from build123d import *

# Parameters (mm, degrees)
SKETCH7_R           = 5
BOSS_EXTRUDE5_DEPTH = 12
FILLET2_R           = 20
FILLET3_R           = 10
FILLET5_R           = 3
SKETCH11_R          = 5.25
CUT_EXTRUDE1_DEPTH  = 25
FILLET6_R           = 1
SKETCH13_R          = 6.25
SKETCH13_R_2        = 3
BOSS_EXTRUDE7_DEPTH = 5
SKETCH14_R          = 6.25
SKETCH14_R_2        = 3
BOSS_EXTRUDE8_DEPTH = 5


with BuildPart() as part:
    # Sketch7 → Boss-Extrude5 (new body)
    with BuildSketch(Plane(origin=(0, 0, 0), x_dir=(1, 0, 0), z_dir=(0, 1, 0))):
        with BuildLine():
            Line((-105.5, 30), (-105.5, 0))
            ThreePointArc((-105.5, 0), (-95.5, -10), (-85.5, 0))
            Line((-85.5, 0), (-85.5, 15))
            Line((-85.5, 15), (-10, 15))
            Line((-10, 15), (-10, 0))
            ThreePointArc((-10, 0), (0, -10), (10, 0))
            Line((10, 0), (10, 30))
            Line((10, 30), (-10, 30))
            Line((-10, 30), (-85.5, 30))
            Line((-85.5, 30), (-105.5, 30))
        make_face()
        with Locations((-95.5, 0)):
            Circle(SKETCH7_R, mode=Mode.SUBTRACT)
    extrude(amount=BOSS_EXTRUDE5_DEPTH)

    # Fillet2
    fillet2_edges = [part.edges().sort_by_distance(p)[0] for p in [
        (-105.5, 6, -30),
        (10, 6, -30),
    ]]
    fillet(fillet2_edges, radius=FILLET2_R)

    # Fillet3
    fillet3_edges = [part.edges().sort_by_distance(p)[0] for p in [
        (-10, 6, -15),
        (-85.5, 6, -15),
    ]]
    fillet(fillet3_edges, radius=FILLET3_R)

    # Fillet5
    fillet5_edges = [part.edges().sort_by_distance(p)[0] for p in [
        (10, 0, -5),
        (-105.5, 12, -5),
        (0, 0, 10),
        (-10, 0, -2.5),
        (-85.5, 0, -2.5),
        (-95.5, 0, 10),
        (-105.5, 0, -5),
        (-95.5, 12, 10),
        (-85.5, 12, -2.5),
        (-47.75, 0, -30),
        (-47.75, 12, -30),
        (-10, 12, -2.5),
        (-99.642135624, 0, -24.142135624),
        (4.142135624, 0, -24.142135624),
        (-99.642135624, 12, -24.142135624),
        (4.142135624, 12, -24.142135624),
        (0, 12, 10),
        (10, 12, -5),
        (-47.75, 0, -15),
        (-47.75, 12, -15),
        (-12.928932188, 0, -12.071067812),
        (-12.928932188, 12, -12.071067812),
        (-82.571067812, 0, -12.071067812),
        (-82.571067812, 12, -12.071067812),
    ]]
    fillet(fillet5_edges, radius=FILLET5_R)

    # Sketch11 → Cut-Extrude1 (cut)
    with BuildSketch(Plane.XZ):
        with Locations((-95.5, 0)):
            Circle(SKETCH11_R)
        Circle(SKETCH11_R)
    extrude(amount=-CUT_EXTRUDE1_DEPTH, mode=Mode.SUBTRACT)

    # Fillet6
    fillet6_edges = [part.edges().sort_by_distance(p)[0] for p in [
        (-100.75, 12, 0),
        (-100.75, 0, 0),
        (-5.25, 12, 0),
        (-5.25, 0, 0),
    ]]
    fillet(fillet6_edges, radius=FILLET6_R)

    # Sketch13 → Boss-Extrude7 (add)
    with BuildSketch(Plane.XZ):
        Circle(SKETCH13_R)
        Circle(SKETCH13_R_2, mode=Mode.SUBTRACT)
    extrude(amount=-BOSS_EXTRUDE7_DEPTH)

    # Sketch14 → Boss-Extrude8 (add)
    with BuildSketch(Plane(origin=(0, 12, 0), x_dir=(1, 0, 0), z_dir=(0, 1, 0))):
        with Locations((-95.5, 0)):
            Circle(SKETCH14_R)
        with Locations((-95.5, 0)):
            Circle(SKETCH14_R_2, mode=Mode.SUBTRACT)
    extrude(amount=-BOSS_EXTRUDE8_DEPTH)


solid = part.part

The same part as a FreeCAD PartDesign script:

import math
import FreeCAD as App
import Part
import Sketcher
Q = App.Units.Quantity


def edges_at(feature, points):
    """Names of the edges that pass closest to the given points."""
    edges = feature.Shape.Edges
    near = lambda p: min(range(len(edges)), key=lambda i: edges[i].distToShape(Part.Vertex(*p))[0])
    return sorted({f"Edge{near(p) + 1}" for p in points})

doc = App.newDocument("Part")
params = doc.addObject("Spreadsheet::Sheet", "Params")
for row, (alias, value) in enumerate([
    ("sketch1_diameter", "10 mm"),
    ("sketch1_radius", "10 mm"),
    ("sketch1_height", "30 mm"),
    ("sketch1_height2", "15 mm"),
    ("sketch1_width", "75.5 mm"),
    ("pad1_length", "12 mm"),
    ("fillet_radius", "20 mm"),
    ("fillet2_radius", "10 mm"),
    ("fillet3_radius", "3 mm"),
    ("sketch2_diameter", "10.5 mm"),
    ("pocket1_length", "25 mm"),
    ("fillet4_radius", "1 mm"),
    ("sketch3_diameter", "6 mm"),
    ("sketch3_diameter2", "12.5 mm"),
    ("pad2_length", "5 mm"),
    ("sketch4_diameter", "6 mm"),
    ("sketch4_diameter2", "12.5 mm"),
    ("pad3_length", "5 mm"),
], start=1):
    params.set(f"A{row}", alias)
    params.set(f"B{row}", "=" + value)
    params.setAlias(f"B{row}", alias)

body = doc.addObject("PartDesign::Body", "Body")

# Sketch on XZ plane
sketch1 = doc.addObject("Sketcher::SketchObject", "Sketch")
body.addObject(sketch1)
sketch1.AttachmentSupport = (doc.XZ_Plane, [""])
sketch1.MapMode = "FlatFace"
sketch1.addGeometry([
    Part.LineSegment(App.Vector(-106, -30, 0), App.Vector(-106, 0, 0)),  # 0
    Part.ArcOfCircle(Part.Circle(App.Vector(-96, 0, 0), App.Vector(0, 0, 1), 10), math.radians(0), math.radians(180)),  # 1
    Part.LineSegment(App.Vector(-86, 0, 0), App.Vector(-86, -15, 0)),  # 2
    Part.LineSegment(App.Vector(-86, -15, 0), App.Vector(-10, -15, 0)),  # 3
    Part.LineSegment(App.Vector(-10, -15, 0), App.Vector(-10, 0, 0)),  # 4
    Part.ArcOfCircle(Part.Circle(App.Vector(0, 0, 0), App.Vector(0, 0, 1), 10), math.radians(0), math.radians(180)),  # 5
    Part.LineSegment(App.Vector(10, 0, 0), App.Vector(10, -30, 0)),  # 6
    Part.LineSegment(App.Vector(10, -30, 0), App.Vector(-106, -30, 0)),  # 7
    Part.Circle(App.Vector(-96, 0, 0), App.Vector(0, 0, 1), 5),  # 8
], False)
sketch1.addConstraint([
    Sketcher.Constraint("Tangent", 0, 2, 1, 2),
    Sketcher.Constraint("Tangent", 1, 1, 2, 1),
    Sketcher.Constraint("Coincident", 2, 2, 3, 1),
    Sketcher.Constraint("Coincident", 3, 2, 4, 1),
    Sketcher.Constraint("Tangent", 4, 2, 5, 2),
    Sketcher.Constraint("Tangent", 5, 1, 6, 1),
    Sketcher.Constraint("Coincident", 6, 2, 7, 1),
    Sketcher.Constraint("Coincident", 7, 2, 0, 1),
    Sketcher.Constraint("Vertical", 0),
    Sketcher.Constraint("Vertical", 2),
    Sketcher.Constraint("Horizontal", 3),
    Sketcher.Constraint("Vertical", 4),
    Sketcher.Constraint("Vertical", 6),
    Sketcher.Constraint("Horizontal", 7),
    Sketcher.Constraint("Coincident", 5, 3, -1, 1),
    Sketcher.Constraint("Coincident", 8, 3, 1, 3),
    Sketcher.Constraint("Equal", 1, 5),
    Sketcher.Constraint("PointOnObject", 1, 3, -1),
    Sketcher.Constraint("Diameter", 8, Q("10 mm")),
    Sketcher.Constraint("Radius", 1, Q("10 mm")),
    Sketcher.Constraint("DistanceY", 0, 1, 0, 2, Q("30 mm")),
    Sketcher.Constraint("DistanceY", 2, 2, 2, 1, Q("15 mm")),
    Sketcher.Constraint("DistanceX", 3, 1, 3, 2, Q("75.5 mm")),
])
sketch1.setExpression("Constraints[18]", "Params.sketch1_diameter")
sketch1.setExpression("Constraints[19]", "Params.sketch1_radius")
sketch1.setExpression("Constraints[20]", "Params.sketch1_height")
sketch1.setExpression("Constraints[21]", "Params.sketch1_height2")
sketch1.setExpression("Constraints[22]", "Params.sketch1_width")
pad1 = doc.addObject("PartDesign::Pad", "Pad")
body.addObject(pad1)
pad1.Profile = sketch1
pad1.setExpression("Length", "Params.pad1_length")
pad1.Reversed = True
doc.recompute()

fillet = doc.addObject("PartDesign::Fillet", "Fillet")
body.addObject(fillet)
fillet.Base = (pad1, edges_at(pad1, [(-105.5, 6, -30), (10, 6, -30)]))
fillet.setExpression("Radius", "Params.fillet_radius")
doc.recompute()

fillet2 = doc.addObject("PartDesign::Fillet", "Fillet001")
body.addObject(fillet2)
fillet2.Base = (fillet, edges_at(fillet, [(-10, 6, -15), (-85.5, 6, -15)]))
fillet2.setExpression("Radius", "Params.fillet2_radius")
doc.recompute()

fillet3 = doc.addObject("PartDesign::Fillet", "Fillet002")
body.addObject(fillet3)
fillet3.Base = (fillet2, edges_at(fillet2, [
    (10, 0, -5),
    (-105.5, 12, -5),
    (0, 0, 10),
    (-10, 0, -2.5),
    (-85.5, 0, -2.5),
    (-95.5, 0, 10),
    (-105.5, 0, -5),
    (-95.5, 12, 10),
    (-85.5, 12, -2.5),
    (-47.75, 0, -30),
    (-47.75, 12, -30),
    (-10, 12, -2.5),
    (-99.642, 0, -24.142),
    (4.142, 0, -24.142),
    (-99.642, 12, -24.142),
    (4.142, 12, -24.142),
    (0, 12, 10),
    (10, 12, -5),
    (-47.75, 0, -15),
    (-47.75, 12, -15),
    (-12.929, 0, -12.071),
    (-12.929, 12, -12.071),
    (-82.571, 0, -12.071),
    (-82.571, 12, -12.071),
]))
fillet3.setExpression("Radius", "Params.fillet3_radius")

# Sketch on XZ plane
sketch2 = doc.addObject("Sketcher::SketchObject", "Sketch001")
body.addObject(sketch2)
sketch2.AttachmentSupport = (doc.XZ_Plane, [""])
sketch2.MapMode = "FlatFace"
sketch2.addGeometry([
    Part.Circle(App.Vector(-96, 0, 0), App.Vector(0, 0, 1), 5),
    Part.Circle(App.Vector(0, 0, 0), App.Vector(0, 0, 1), 5),
], False)
sketch2.addConstraint([
    Sketcher.Constraint("Coincident", 1, 3, -1, 1),
    Sketcher.Constraint("Equal", 0, 1),
    Sketcher.Constraint("PointOnObject", 0, 3, -1),
    Sketcher.Constraint("Diameter", 0, Q("10.5 mm")),
    Sketcher.Constraint("DistanceX", 0, 3, -1, 1, Q("95.5 mm")),
])
sketch2.setExpression("Constraints[3]", "Params.sketch2_diameter")
pocket1 = doc.addObject("PartDesign::Pocket", "Pocket")
body.addObject(pocket1)
pocket1.Profile = sketch2
pocket1.setExpression("Length", "Params.pocket1_length")
doc.recompute()

fillet4 = doc.addObject("PartDesign::Fillet", "Fillet003")
body.addObject(fillet4)
fillet4.Base = (pocket1, edges_at(pocket1, [
    (-100.75, 12, 0),
    (-100.75, 0, 0),
    (-5.25, 12, 0),
    (-5.25, 0, 0),
]))
fillet4.setExpression("Radius", "Params.fillet4_radius")

# Sketch on XZ plane
sketch3 = doc.addObject("Sketcher::SketchObject", "Sketch002")
body.addObject(sketch3)
sketch3.AttachmentSupport = (doc.XZ_Plane, [""])
sketch3.MapMode = "FlatFace"
sketch3.addGeometry([
    Part.Circle(App.Vector(0, 0, 0), App.Vector(0, 0, 1), 6.2),
    Part.Circle(App.Vector(0, 0, 0), App.Vector(0, 0, 1), 3),
], False)
sketch3.addConstraint([
    Sketcher.Constraint("Coincident", 0, 3, -1, 1),
    Sketcher.Constraint("Coincident", 1, 3, -1, 1),
    Sketcher.Constraint("Diameter", 1, Q("6 mm")),
    Sketcher.Constraint("Diameter", 0, Q("12.5 mm")),
])
sketch3.setExpression("Constraints[2]", "Params.sketch3_diameter")
sketch3.setExpression("Constraints[3]", "Params.sketch3_diameter2")
pad2 = doc.addObject("PartDesign::Pad", "Pad001")
body.addObject(pad2)
pad2.Profile = sketch3
pad2.setExpression("Length", "Params.pad2_length")
pad2.Reversed = True

# Sketch on XZ plane
sketch4 = doc.addObject("Sketcher::SketchObject", "Sketch003")
body.addObject(sketch4)
sketch4.AttachmentSupport = (doc.XZ_Plane, [""])
sketch4.MapMode = "FlatFace"
sketch4.AttachmentOffset = App.Placement(App.Vector(0, 0, -12), App.Rotation())
sketch4.addGeometry([
    Part.Circle(App.Vector(-95.5, 0, 0), App.Vector(0, 0, 1), 6.2),
    Part.Circle(App.Vector(-95.5, 0, 0), App.Vector(0, 0, 1), 3),
], False)
sketch4.addConstraint([
    Sketcher.Constraint("Coincident", 1, 3, 0, 3),
    Sketcher.Constraint("PointOnObject", 0, 3, -1),
    Sketcher.Constraint("Diameter", 1, Q("6 mm")),
    Sketcher.Constraint("Diameter", 0, Q("12.5 mm")),
    Sketcher.Constraint("DistanceX", 0, 3, -1, 1, Q("95.5 mm")),
])
sketch4.setExpression("Constraints[2]", "Params.sketch4_diameter")
sketch4.setExpression("Constraints[3]", "Params.sketch4_diameter2")
pad3 = doc.addObject("PartDesign::Pad", "Pad002")
body.addObject(pad3)
pad3.Profile = sketch4
pad3.setExpression("Length", "Params.pad3_length")

doc.recompute()
